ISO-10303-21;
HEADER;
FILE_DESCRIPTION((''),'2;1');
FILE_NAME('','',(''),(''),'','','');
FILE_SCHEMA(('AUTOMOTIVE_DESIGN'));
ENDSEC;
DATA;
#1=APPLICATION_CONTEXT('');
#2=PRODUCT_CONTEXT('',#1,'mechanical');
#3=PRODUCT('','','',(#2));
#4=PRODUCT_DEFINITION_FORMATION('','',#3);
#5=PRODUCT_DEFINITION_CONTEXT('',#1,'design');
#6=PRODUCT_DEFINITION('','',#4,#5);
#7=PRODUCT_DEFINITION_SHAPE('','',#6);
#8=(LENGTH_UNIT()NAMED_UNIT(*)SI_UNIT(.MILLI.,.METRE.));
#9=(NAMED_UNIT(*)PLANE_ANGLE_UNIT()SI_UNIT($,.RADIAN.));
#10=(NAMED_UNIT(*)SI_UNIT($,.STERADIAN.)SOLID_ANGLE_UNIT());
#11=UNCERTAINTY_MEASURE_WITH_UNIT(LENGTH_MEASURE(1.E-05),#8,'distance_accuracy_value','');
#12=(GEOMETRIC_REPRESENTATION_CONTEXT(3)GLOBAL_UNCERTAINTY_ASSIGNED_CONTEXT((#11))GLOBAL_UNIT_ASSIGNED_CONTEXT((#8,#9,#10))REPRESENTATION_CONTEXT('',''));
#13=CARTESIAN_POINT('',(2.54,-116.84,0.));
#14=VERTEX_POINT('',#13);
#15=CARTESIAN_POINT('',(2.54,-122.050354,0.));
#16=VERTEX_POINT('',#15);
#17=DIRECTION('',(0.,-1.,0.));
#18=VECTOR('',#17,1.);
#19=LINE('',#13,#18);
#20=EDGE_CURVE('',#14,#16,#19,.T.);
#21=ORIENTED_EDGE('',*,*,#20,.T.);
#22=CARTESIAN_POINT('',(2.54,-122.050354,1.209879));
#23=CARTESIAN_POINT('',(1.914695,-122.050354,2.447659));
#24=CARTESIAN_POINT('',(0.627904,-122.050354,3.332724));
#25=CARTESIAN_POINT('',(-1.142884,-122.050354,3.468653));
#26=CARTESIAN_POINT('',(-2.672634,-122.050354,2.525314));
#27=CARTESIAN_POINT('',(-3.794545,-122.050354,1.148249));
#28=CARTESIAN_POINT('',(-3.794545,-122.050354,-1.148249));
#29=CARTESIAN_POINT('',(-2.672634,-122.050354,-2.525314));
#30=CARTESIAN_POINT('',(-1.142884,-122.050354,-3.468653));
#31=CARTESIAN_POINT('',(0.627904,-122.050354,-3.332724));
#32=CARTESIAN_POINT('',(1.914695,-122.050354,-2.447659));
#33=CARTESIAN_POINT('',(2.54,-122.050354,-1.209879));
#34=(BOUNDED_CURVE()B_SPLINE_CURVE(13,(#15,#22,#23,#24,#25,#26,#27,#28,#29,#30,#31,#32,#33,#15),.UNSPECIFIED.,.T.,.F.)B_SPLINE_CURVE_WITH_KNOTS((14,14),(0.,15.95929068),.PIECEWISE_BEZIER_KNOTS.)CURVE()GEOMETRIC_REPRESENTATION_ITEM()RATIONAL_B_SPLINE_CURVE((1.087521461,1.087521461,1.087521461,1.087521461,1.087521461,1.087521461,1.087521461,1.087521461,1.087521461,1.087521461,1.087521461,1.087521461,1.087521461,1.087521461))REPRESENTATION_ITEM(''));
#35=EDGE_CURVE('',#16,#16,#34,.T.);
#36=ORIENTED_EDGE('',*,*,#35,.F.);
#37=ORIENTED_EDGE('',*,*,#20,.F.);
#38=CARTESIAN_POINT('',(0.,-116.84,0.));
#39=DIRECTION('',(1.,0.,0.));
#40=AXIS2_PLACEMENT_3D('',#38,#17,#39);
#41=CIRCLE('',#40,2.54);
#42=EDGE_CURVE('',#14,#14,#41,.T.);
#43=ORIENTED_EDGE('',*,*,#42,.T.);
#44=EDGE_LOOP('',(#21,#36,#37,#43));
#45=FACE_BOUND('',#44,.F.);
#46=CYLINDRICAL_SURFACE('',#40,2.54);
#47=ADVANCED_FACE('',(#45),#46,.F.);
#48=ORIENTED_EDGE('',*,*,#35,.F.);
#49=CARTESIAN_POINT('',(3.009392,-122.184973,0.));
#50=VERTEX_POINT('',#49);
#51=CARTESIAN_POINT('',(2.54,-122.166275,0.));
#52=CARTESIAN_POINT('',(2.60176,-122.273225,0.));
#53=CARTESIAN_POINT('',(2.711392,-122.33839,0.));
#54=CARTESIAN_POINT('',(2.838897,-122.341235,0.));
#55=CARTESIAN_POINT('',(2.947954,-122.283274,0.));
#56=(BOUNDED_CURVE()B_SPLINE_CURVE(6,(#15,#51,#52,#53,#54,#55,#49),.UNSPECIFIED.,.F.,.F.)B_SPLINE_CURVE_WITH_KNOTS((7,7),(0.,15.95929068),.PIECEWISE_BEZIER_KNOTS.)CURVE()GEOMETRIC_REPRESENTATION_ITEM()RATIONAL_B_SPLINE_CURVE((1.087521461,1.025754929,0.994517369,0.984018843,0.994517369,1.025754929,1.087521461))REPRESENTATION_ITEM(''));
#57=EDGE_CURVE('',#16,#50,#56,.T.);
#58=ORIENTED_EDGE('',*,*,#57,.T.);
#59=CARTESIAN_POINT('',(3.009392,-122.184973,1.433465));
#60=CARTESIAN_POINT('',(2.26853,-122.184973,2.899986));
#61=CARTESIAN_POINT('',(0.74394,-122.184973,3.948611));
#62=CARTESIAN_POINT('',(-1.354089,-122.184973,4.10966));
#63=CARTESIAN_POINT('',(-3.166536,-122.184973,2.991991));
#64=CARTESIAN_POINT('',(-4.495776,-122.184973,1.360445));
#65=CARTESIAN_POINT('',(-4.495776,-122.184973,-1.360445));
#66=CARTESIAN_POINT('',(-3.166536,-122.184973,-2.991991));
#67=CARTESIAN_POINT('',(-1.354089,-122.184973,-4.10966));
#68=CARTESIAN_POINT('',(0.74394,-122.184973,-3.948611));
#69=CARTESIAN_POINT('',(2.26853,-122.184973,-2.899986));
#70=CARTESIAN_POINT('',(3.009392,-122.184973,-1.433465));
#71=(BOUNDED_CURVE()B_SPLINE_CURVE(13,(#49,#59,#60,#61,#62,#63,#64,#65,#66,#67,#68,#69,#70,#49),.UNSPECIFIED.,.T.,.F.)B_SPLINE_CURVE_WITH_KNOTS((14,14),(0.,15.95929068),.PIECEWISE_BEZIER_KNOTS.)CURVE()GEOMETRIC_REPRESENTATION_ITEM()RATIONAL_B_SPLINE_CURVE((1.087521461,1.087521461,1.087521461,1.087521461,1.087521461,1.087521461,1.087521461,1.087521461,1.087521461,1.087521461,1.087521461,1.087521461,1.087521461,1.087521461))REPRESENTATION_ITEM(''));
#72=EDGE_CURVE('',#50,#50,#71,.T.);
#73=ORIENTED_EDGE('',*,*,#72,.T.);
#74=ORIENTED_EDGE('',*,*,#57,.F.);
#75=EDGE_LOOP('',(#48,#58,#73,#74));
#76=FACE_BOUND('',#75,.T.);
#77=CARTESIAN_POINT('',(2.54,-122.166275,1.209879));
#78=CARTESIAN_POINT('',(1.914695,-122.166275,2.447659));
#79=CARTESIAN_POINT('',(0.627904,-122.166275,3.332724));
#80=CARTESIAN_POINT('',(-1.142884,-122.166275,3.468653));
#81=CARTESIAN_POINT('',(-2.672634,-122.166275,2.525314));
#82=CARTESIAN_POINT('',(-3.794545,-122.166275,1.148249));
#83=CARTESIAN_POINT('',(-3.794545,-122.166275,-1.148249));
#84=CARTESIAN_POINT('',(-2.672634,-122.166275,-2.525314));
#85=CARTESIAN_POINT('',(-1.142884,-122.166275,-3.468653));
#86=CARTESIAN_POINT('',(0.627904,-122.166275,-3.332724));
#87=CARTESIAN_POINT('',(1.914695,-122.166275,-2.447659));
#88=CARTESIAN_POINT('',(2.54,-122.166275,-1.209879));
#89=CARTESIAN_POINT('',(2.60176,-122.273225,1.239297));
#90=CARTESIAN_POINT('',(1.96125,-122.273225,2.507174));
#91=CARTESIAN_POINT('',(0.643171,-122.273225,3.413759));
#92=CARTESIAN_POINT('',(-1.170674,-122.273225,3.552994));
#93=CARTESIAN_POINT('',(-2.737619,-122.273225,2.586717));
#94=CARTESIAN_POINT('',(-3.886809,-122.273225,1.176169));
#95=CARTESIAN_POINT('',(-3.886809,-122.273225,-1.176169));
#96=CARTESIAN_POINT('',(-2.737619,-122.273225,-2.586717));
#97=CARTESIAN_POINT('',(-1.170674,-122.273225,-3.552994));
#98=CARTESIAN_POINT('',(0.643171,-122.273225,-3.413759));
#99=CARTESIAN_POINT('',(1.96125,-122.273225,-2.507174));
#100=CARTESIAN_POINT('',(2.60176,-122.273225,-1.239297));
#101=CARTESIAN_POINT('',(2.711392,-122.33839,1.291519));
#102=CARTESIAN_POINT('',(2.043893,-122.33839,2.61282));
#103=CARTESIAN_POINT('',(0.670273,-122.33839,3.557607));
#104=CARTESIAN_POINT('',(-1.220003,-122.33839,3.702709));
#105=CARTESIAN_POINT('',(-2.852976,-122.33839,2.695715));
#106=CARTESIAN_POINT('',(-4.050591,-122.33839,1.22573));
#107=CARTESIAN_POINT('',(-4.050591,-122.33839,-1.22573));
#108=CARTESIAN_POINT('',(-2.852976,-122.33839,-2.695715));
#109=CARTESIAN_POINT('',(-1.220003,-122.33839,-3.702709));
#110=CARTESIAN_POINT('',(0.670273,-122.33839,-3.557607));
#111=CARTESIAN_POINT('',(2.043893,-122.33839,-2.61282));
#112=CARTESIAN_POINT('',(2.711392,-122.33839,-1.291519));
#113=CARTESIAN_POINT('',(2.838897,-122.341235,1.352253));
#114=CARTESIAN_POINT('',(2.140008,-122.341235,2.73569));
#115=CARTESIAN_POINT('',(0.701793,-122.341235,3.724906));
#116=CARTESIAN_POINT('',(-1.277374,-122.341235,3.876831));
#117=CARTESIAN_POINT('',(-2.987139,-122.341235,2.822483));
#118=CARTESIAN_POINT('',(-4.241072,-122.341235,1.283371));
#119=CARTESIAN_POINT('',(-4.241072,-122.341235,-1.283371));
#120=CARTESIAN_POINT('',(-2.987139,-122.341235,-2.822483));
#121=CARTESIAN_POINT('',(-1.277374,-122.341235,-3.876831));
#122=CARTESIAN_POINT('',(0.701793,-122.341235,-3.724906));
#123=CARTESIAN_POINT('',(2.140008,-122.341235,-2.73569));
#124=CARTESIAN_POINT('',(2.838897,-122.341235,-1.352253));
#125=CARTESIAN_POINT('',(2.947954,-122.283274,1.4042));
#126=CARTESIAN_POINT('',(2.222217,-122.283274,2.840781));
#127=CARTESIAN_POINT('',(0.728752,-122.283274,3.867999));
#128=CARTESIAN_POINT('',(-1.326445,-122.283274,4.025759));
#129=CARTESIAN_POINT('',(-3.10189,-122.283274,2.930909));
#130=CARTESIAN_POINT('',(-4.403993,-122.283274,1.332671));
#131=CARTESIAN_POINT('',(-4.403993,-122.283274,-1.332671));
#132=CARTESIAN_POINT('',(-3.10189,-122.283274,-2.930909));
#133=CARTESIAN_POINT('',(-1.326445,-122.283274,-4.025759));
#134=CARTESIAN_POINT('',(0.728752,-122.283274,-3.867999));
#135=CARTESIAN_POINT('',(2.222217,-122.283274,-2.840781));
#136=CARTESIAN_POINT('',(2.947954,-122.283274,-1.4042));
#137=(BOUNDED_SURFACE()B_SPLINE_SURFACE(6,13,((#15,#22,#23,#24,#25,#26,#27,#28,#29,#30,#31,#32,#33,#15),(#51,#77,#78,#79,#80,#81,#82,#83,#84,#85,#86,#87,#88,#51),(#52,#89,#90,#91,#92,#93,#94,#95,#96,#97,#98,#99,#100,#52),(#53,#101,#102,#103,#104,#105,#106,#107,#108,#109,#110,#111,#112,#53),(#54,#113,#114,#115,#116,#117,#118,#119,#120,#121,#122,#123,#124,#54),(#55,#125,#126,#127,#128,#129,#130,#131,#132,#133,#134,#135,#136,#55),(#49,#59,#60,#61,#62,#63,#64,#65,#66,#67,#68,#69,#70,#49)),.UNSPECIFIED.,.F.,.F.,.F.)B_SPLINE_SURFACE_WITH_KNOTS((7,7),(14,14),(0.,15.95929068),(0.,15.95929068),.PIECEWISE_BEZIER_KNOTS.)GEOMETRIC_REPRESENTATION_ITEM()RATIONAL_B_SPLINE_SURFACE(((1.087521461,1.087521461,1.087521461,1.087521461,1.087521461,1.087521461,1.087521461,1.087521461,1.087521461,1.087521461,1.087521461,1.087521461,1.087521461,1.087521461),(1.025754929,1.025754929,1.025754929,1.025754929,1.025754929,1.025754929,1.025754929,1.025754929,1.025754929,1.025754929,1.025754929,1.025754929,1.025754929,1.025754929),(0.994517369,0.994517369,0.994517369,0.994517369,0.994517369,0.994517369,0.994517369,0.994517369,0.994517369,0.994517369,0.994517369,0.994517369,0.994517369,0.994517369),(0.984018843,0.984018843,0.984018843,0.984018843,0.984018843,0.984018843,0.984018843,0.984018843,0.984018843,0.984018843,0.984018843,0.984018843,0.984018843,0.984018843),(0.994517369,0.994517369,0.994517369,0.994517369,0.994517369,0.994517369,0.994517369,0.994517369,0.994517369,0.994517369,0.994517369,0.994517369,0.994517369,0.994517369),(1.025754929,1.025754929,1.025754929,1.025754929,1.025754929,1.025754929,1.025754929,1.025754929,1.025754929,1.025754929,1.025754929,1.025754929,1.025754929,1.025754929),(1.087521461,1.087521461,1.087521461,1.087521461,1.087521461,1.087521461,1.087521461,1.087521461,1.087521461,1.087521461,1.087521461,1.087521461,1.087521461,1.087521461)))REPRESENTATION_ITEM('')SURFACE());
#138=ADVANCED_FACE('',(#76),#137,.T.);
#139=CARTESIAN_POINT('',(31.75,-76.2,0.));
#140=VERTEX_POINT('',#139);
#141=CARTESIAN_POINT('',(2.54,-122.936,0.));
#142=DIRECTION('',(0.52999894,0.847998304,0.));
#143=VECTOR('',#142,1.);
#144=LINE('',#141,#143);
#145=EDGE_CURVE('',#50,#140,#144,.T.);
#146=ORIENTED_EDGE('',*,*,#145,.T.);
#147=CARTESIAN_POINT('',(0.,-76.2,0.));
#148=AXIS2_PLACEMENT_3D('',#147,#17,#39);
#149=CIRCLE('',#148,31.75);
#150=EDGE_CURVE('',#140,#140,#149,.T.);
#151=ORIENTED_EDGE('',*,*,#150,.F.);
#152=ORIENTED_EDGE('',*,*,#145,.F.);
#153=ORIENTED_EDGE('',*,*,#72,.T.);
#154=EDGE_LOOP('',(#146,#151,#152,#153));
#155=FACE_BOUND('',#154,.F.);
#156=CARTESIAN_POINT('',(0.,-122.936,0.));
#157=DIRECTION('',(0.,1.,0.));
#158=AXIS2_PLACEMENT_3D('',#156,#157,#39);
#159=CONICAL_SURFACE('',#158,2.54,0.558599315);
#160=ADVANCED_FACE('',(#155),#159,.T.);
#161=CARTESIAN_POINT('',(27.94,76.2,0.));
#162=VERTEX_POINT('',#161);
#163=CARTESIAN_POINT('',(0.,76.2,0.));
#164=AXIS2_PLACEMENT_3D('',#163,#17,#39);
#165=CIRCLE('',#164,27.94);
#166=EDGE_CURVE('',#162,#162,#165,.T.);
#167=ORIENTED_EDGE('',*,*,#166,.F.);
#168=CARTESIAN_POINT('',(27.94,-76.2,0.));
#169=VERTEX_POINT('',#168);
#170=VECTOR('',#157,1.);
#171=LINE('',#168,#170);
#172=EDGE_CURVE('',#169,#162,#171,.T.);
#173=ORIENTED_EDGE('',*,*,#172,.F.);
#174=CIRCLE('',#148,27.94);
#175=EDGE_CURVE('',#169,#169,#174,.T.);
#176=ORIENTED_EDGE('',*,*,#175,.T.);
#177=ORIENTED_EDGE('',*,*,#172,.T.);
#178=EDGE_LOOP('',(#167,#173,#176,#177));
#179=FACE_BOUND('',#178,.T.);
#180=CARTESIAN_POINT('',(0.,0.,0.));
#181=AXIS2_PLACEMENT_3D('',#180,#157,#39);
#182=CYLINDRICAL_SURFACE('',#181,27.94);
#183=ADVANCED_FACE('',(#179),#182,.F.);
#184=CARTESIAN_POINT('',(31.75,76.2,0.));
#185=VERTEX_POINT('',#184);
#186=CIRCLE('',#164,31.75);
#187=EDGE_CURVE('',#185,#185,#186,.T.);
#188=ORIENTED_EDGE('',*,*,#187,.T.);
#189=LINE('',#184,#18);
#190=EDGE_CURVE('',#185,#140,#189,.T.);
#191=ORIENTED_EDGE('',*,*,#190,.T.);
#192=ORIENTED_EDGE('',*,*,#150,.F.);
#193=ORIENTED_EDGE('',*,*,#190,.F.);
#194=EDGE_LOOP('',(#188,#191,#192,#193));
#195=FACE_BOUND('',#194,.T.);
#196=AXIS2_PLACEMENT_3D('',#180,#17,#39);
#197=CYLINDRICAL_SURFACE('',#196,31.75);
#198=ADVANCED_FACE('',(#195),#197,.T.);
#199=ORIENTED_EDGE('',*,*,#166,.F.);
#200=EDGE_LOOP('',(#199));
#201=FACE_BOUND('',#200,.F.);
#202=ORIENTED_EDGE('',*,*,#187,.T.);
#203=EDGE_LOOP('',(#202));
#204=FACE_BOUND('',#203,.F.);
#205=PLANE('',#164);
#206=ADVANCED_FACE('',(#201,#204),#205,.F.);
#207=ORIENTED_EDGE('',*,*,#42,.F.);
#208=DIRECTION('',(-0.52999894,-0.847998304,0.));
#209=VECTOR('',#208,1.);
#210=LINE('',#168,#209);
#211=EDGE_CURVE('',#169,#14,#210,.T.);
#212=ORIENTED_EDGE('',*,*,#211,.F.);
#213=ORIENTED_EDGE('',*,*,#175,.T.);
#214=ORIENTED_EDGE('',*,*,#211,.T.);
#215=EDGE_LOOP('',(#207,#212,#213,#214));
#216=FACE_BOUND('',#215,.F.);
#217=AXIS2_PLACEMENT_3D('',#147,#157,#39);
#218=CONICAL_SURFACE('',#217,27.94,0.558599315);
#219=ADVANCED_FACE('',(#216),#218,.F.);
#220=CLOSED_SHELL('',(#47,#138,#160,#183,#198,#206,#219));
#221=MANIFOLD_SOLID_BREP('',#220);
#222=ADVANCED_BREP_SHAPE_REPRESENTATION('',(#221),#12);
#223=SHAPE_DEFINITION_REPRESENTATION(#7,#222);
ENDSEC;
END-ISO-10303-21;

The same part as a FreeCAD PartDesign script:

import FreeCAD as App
import Part
import Sketcher
Q = App.Units.Quantity


def edges_at(feature, points):
    """Names of the edges that pass closest to the given points."""
    edges = feature.Shape.Edges
    near = lambda p: min(range(len(edges)), key=lambda i: edges[i].distToShape(Part.Vertex(*p))[0])
    return sorted({f"Edge{near(p) + 1}" for p in points})


def add_polygon(sketch, points):
    """Adds a closed chain of lines whose ends are joined by coincident constraints."""
    first, n = sketch.GeometryCount, len(points)
    for a, b in zip(points, points[1:] + points[:1]):
        sketch.addGeometry(Part.LineSegment(App.Vector(*a, 0), App.Vector(*b, 0)), False)
    for i in range(n):
        sketch.addConstraint(Sketcher.Constraint("Coincident", first + i, 2, first + (i + 1) % n, 1))

doc = App.newDocument("Part")
body = doc.addObject("PartDesign::Body", "Body")

sketch1 = body.newObject("Sketcher::SketchObject", "Sketch")
sketch1.AttachmentSupport = (doc.getObject("XZ_Plane"), [""])
sketch1.MapMode = "FlatFace"
sketch1.addGeometry(Part.Circle(App.Vector(0, 0, 0), App.Vector(0, 0, 1), 31.75), False)
sketch1.addGeometry(Part.Circle(App.Vector(0, 0, 0), App.Vector(0, 0, 1), 27.94), False)
sketch1.addConstraint(Sketcher.Constraint("Coincident", 0, 3, -1, 1))
sketch1.addConstraint(Sketcher.Constraint("Coincident", 1, 3, -1, 1))
sketch1.addConstraint(Sketcher.Constraint("Diameter", 0, Q("2.5 in")))
sketch1.addConstraint(Sketcher.Constraint("Diameter", 1, Q("2.2 in")))
pad1 = body.newObject("PartDesign::Pad", "Pad")
pad1.Profile = sketch1
pad1.Length = Q("6 in")
pad1.Midplane = True

sketch2 = body.newObject("Sketcher::SketchObject", "Sketch001")
sketch2.AttachmentSupport = (doc.getObject("XY_Plane"), [""])
sketch2.MapMode = "FlatFace"
add_polygon(sketch2, [(31.75, -76.2), (27.94, -76.2), (2.54, -116.84), (2.54, -122.936)])
sketch2.addConstraint(Sketcher.Constraint("Horizontal", 0))
sketch2.addConstraint(Sketcher.Constraint("Vertical", 2))
sketch2.addConstraint(Sketcher.Constraint("Parallel", 1, 3))
sketch2.addConstraint(Sketcher.Constraint("DistanceY", 0, 2, -1, 1, Q("3 in")))
sketch2.addConstraint(Sketcher.Constraint("DistanceX", 1, 2, 0, 2, Q("1 in")))
sketch2.addConstraint(Sketcher.Constraint("DistanceX", 0, 2, 0, 1, Q("0.15 in")))
sketch2.addConstraint(Sketcher.Constraint("DistanceY", 2, 2, 2, 1, Q("0.24 in")))
sketch2.addConstraint(Sketcher.Constraint("DistanceX", -1, 1, 0, 2, Q("1.1 in")))
revolution = body.newObject("PartDesign::Revolution", "Revolution")
revolution.Profile = sketch2
revolution.ReferenceAxis = (sketch2, ["V_Axis"])
revolution.Angle = 360
doc.recompute()

fillet = body.newObject("PartDesign::Fillet", "Fillet")
fillet.Base = (revolution, edges_at(revolution, [(-2.54, -122.936, 0)]))
fillet.Radius = Q("0.01 in")

doc.recompute()
